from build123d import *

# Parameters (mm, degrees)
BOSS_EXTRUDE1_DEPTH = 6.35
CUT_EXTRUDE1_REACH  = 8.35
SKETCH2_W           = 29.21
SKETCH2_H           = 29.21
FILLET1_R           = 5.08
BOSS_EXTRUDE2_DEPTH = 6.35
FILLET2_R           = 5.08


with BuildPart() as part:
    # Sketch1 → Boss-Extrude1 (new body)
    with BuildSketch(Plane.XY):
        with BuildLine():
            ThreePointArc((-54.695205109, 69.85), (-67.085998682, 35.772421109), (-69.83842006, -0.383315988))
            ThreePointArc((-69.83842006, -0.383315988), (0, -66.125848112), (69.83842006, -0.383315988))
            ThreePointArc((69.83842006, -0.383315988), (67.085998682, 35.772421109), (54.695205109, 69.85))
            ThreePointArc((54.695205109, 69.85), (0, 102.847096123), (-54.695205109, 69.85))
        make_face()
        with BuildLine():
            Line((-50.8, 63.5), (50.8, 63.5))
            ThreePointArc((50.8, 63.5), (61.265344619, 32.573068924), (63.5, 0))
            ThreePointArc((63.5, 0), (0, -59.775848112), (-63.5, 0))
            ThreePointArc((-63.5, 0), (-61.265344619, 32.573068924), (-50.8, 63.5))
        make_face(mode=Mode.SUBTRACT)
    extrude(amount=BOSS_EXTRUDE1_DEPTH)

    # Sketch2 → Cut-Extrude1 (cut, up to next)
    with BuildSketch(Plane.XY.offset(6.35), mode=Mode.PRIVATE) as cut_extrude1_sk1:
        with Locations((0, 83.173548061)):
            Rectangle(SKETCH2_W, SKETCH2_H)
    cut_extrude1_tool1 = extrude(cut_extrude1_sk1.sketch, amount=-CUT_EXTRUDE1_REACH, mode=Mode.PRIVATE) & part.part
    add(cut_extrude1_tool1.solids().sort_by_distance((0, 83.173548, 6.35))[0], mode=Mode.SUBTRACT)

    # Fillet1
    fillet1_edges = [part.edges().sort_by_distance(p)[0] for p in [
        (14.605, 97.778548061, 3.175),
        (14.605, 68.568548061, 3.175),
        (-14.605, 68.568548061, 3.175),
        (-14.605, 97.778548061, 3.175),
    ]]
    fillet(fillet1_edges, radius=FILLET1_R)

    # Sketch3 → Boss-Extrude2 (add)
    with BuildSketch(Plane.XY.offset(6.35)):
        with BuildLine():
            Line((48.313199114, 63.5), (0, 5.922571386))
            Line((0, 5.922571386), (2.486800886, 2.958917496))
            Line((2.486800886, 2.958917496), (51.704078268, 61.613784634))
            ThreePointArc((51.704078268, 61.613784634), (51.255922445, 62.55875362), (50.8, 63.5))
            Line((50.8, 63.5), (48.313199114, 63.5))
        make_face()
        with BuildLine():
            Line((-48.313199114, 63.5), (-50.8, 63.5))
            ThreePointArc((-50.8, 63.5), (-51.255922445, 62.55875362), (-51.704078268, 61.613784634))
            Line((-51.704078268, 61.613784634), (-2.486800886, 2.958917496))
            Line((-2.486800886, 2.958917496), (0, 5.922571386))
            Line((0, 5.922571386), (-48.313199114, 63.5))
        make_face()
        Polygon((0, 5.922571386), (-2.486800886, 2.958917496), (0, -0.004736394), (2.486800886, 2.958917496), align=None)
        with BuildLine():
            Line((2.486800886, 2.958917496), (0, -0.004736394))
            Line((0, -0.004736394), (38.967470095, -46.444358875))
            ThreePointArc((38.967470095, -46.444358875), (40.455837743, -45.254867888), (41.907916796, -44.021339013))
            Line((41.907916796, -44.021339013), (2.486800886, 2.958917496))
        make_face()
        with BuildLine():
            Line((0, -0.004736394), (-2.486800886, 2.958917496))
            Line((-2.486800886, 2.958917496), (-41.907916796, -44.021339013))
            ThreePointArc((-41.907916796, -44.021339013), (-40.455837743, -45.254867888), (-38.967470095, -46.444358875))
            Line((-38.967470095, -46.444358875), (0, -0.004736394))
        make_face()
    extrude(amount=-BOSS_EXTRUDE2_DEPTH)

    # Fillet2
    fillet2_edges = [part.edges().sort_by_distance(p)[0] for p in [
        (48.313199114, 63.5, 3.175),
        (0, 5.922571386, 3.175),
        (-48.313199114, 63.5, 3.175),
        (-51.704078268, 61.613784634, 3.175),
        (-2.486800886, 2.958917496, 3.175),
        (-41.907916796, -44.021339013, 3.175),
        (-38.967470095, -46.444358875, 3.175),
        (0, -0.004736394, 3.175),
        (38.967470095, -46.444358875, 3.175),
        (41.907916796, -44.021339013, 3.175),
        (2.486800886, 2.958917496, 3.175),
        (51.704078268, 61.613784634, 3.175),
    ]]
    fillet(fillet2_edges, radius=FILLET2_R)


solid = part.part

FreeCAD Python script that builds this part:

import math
import FreeCAD as App
import Part
import Sketcher
from FreeCAD import Vector
Q = App.Units.Quantity


def edges_at(feature, points):
    """Names of the edges that pass closest to the given points."""
    edges = feature.Shape.Edges
    near = lambda p: min(range(len(edges)), key=lambda i: edges[i].distToShape(Part.Vertex(*p))[0])
    return sorted({f"Edge{near(p) + 1}" for p in points})


def add_polygon(sketch, points):
    """Adds a closed chain of lines whose ends are joined by coincident constraints."""
    first, n = sketch.GeometryCount, len(points)
    for a, b in zip(points, points[1:] + points[:1]):
        sketch.addGeometry(Part.LineSegment(App.Vector(*a, 0), App.Vector(*b, 0)), False)
    for i in range(n):
        sketch.addConstraint(Sketcher.Constraint("Coincident", first + i, 2, first + (i + 1) % n, 1))

doc = App.newDocument("Part")
params = doc.addObject("Spreadsheet::Sheet", "Params")
for row, (alias, value) in enumerate([
    ("sketch1_radius", "5 in"),
    ("sketch1_width", "4 in"),
    ("sketch1_radius2", "5.25 in"),
    ("pad1_length", "0.25 in"),
    ("sketch2_width", "1.15 in"),
    ("fillet_radius", "0.2 in"),
    ("sketch3_radius", "5 in"),
    ("pad2_length", "0.25 in"),
    ("fillet2_radius", "0.2 in"),
], start=1):
    params.set(f"A{row}", alias)
    params.set(f"B{row}", "=" + value)
    params.setAlias(f"B{row}", alias)

body = doc.addObject("PartDesign::Body", "Body")

# Sketch on XY plane
sketch1 = body.newObject("Sketcher::SketchObject", "Sketch")
sketch1.AttachmentSupport = (doc.getObject("XY_Plane"), [""])
sketch1.MapMode = "FlatFace"
sketch1.addGeometry(Part.ArcOfCircle(Part.Circle(Vector(63.268401, 7.66632, 0), Vector(0, 0, 1), 133.35), math.radians(152.204361), math.radians(183.460748)), False)
sketch1.addGeometry(Part.ArcOfCircle(Part.Circle(Vector(0, 3.840163, 0), Vector(0, 0, 1), 69.966011), math.radians(-176.539252), math.radians(-3.460748)), False)
sketch1.addGeometry(Part.ArcOfCircle(Part.Circle(Vector(-63.268401, 7.66632, 0), Vector(0, 0, 1), 133.35), math.radians(-3.460748), math.radians(27.795639)), False)
sketch1.addGeometry(Part.ArcOfCircle(Part.Circle(Vector(0, 41.01781, 0), Vector(0, 0, 1), 61.829286), math.radians(27.795639), math.radians(152.204361)), False)
sketch1.addGeometry(Part.ArcOfCircle(Part.Circle(Vector(63.268401, 7.66632, 0), Vector(0, 0, 1), 127), math.radians(153.919387), math.radians(183.460748)), False)
sketch1.addGeometry(Part.LineSegment(Vector(-50.8, 63.5, 0), Vector(50.8, 63.5, 0)), False)
sketch1.addGeometry(Part.ArcOfCircle(Part.Circle(Vector(-63.268401, 7.66632, 0), Vector(0, 0, 1), 127), math.radians(-3.460748), math.radians(26.080613)), False)
sketch1.addGeometry(Part.ArcOfCircle(Part.Circle(Vector(0, 3.840163, 0), Vector(0, 0, 1), 63.616011), math.radians(-176.539252), math.radians(-3.460748)), False)
sketch1.addConstraint(Sketcher.Constraint("Tangent", 0, 2, 1, 1))
sketch1.addConstraint(Sketcher.Constraint("Tangent", 1, 2, 2, 1))
sketch1.addConstraint(Sketcher.Constraint("Tangent", 2, 2, 3, 1))
sketch1.addConstraint(Sketcher.Constraint("Tangent", 3, 2, 0, 1))
sketch1.addConstraint(Sketcher.Constraint("Coincident", 4, 1, 5, 1))
sketch1.addConstraint(Sketcher.Constraint("Coincident", 5, 2, 6, 2))
sketch1.addConstraint(Sketcher.Constraint("Tangent", 6, 1, 7, 2))
sketch1.addConstraint(Sketcher.Constraint("Tangent", 7, 1, 4, 2))
sketch1.addConstraint(Sketcher.Constraint("Horizontal", 5))
sketch1.addConstraint(Sketcher.Constraint("Coincident", 4, 3, 0, 3))
sketch1.addConstraint(Sketcher.Constraint("Coincident", 6, 3, 2, 3))
sketch1.addConstraint(Sketcher.Constraint("Coincident", 7, 3, 1, 3))
sketch1.addConstraint(Sketcher.Constraint("Equal", 0, 2))
sketch1.addConstraint(Sketcher.Constraint("Symmetric", 6, 1, 7, 1, -1, 1))
sketch1.addConstraint(Sketcher.Constraint("PointOnObject", 1, 3, -2))
sketch1.addConstraint(Sketcher.Constraint("Radius", 4, Q("5 in")))
sketch1.addConstraint(Sketcher.Constraint("DistanceX", 5, 1, 5, 2, Q("4 in")))
sketch1.addConstraint(Sketcher.Constraint("Radius", 0, Q("5.25 in")))
sketch1.addConstraint(Sketcher.Constraint("DistanceY", -1, 1, 4, 1, Q("2.5 in")))
sketch1.addConstraint(Sketcher.Constraint("DistanceX", -1, 1, 6, 1, Q("2.5 in")))
sketch1.addConstraint(Sketcher.Constraint("DistanceY", -1, 1, 2, 2, Q("2.75 in")))
sketch1.setExpression("Constraints[15]", "Params.sketch1_radius")
sketch1.setExpression("Constraints[16]", "Params.sketch1_width")
sketch1.setExpression("Constraints[17]", "Params.sketch1_radius2")
pad1 = body.newObject("PartDesign::Pad", "Pad")
pad1.Profile = sketch1
pad1.setExpression("Length", "Params.pad1_length")

# Sketch on XY plane
sketch2 = body.newObject("Sketcher::SketchObject", "Sketch001")
sketch2.AttachmentSupport = (doc.getObject("XY_Plane"), [""])
sketch2.MapMode = "FlatFace"
sketch2.AttachmentOffset = App.Placement(Vector(0, 0, 0.25 * 25.4), App.Rotation())
add_polygon(sketch2, [(-14.605, 97.778548), (-14.605, 68.568548), (14.605, 68.568548), (14.605, 97.778548)])  # lines 0-3
sketch2.addConstraint(Sketcher.Constraint("Vertical", 0))
sketch2.addConstraint(Sketcher.Constraint("Horizontal", 1))
sketch2.addConstraint(Sketcher.Constraint("Vertical", 2))
sketch2.addConstraint(Sketcher.Constraint("Horizontal", 3))
sketch2.addConstraint(Sketcher.Constraint("Equal", 3, 0))
sketch2.addConstraint(Sketcher.Constraint("DistanceX", 1, 1, 1, 2, Q("1.15 in")))
sketch2.addConstraint(Sketcher.Constraint("DistanceX", 0, 2, -1, 1, Q("0.575 in")))
sketch2.addConstraint(Sketcher.Constraint("DistanceY", -1, 1, 0, 2, 68.568548))
sketch2.setExpression("Constraints[9]", "Params.sketch2_width")
pocket1 = body.newObject("PartDesign::Pocket", "Pocket")
pocket1.Profile = sketch2
pocket1.Type = "UpToFirst"
doc.recompute()

fillet = body.newObject("PartDesign::Fillet", "Fillet")
fillet.Base = (pocket1, edges_at(pocket1, [
    (14.605, 97.779, 3.175),
    (14.605, 68.569, 3.175),
    (-14.605, 68.569, 3.175),
    (-14.605, 97.779, 3.175),
]))
fillet.setExpression("Radius", "Params.fillet_radius")

# Sketch on XY plane
sketch3 = body.newObject("Sketcher::SketchObject", "Sketch002")
sketch3.AttachmentSupport = (doc.getObject("XY_Plane"), [""])
sketch3.MapMode = "FlatFace"
sketch3.AttachmentOffset = App.Placement(Vector(0, 0, 0.25 * 25.4), App.Rotation())
sketch3.addGeometry(Part.LineSegment(Vector(48.313199, 63.5, 0), Vector(0, 5.922571, 0)), False)
sketch3.addGeometry(Part.LineSegment(Vector(0, 5.922571, 0), Vector(-48.313199, 63.5, 0)), False)
sketch3.addGeometry(Part.LineSegment(Vector(-48.313199, 63.5, 0), Vector(-50.8, 63.5, 0)), False)
sketch3.addGeometry(Part.ArcOfCircle(Part.Circle(Vector(63.2684, 7.66632, 0), Vector(0, 0, 1), 126.999999), math.radians(153.919387), math.radians(154.863059)), False)
sketch3.addGeometry(Part.LineSegment(Vector(-51.704078, 61.613785, 0), Vector(-2.486801, 2.958917, 0)), False)
sketch3.addGeometry(Part.LineSegment(Vector(-2.486801, 2.958917, 0), Vector(-41.907917, -44.021339, 0)), False)
sketch3.addGeometry(Part.ArcOfCircle(Part.Circle(Vector(0.000001, 3.840164, 0), Vector(0, 0, 1), 63.616012), math.radians(-131.205651), math.radians(-127.773524)), False)
sketch3.addGeometry(Part.LineSegment(Vector(-38.96747, -46.444359, 0), Vector(0, -0.004736, 0)), False)
sketch3.addGeometry(Part.LineSegment(Vector(0, -0.004736, 0), Vector(38.96747, -46.444359, 0)), False)
sketch3.addGeometry(Part.ArcOfCircle(Part.Circle(Vector(-0.000001, 3.840164, 0), Vector(0, 0, 1), 63.616012), math.radians(-52.226476), math.radians(-48.794349)), False)
sketch3.addGeometry(Part.LineSegment(Vector(41.907917, -44.021339, 0), Vector(2.486801, 2.958917, 0)), False)
sketch3.addGeometry(Part.LineSegment(Vector(2.486801, 2.958917, 0), Vector(51.704078, 61.613785, 0)), False)
sketch3.addGeometry(Part.ArcOfCircle(Part.Circle(Vector(-63.2684, 7.66632, 0), Vector(0, 0, 1), 126.999999), math.radians(25.136941), math.radians(26.080613)), False)
sketch3.addGeometry(Part.LineSegment(Vector(50.8, 63.5, 0), Vector(48.313199, 63.5, 0)), False)
sketch3.addConstraint(Sketcher.Constraint("Coincident", 0, 2, 1, 1))
sketch3.addConstraint(Sketcher.Constraint("Coincident", 1, 2, 2, 1))
sketch3.addConstraint(Sketcher.Constraint("Coincident", 2, 2, 3, 1))
sketch3.addConstraint(Sketcher.Constraint("Coincident", 3, 2, 4, 1))
sketch3.addConstraint(Sketcher.Constraint("Coincident", 4, 2, 5, 1))
sketch3.addConstraint(Sketcher.Constraint("Coincident", 5, 2, 6, 1))
sketch3.addConstraint(Sketcher.Constraint("Coincident", 6, 2, 7, 1))
sketch3.addConstraint(Sketcher.Constraint("Coincident", 7, 2, 8, 1))
sketch3.addConstraint(Sketcher.Constraint("Coincident", 8, 2, 9, 1))
sketch3.addConstraint(Sketcher.Constraint("Coincident", 9, 2, 10, 1))
sketch3.addConstraint(Sketcher.Constraint("Coincident", 10, 2, 11, 1))
sketch3.addConstraint(Sketcher.Constraint("Coincident", 11, 2, 12, 1))
sketch3.addConstraint(Sketcher.Constraint("Coincident", 12, 2, 13, 1))
sketch3.addConstraint(Sketcher.Constraint("Coincident", 13, 2, 0, 1))
sketch3.addConstraint(Sketcher.Constraint("Horizontal", 2))
sketch3.addConstraint(Sketcher.Constraint("Horizontal", 13))
sketch3.addConstraint(Sketcher.Constraint("Coincident", 9, 3, 6, 3))
sketch3.addConstraint(Sketcher.Constraint("Equal", 6, 9))
sketch3.addConstraint(Sketcher.Constraint("Equal", 3, 12))
sketch3.addConstraint(Sketcher.Constraint("Symmetric", 3, 3, 12, 3, -2))
sketch3.addConstraint(Sketcher.Constraint("Symmetric", 6, 2, 8, 2, -2))
sketch3.addConstraint(Sketcher.Constraint("Symmetric", 4, 2, 10, 2, -2))
sketch3.addConstraint(Sketcher.Constraint("Symmetric", 1, 2, 13, 2, -2))
sketch3.addConstraint(Sketcher.Constraint("PointOnObject", 0, 2, -2))
sketch3.addConstraint(Sketcher.Constraint("PointOnObject", 7, 2, -2))
sketch3.addConstraint(Sketcher.Constraint("Parallel", 1, 4))
sketch3.addConstraint(Sketcher.Constraint("Parallel", 0, 5))
sketch3.addConstraint(Sketcher.Constraint("Parallel", 5, 7))
sketch3.addConstraint(Sketcher.Constraint("Parallel", 8, 10))
sketch3.addConstraint(Sketcher.Constraint("Parallel", 7, 11))
sketch3.addConstraint(Sketcher.Constraint("Radius", 3, Q("5 in")))
sketch3.addConstraint(Sketcher.Constraint("DistanceX", 2, 2, -1, 1, Q("2 in")))
sketch3.addConstraint(Sketcher.Constraint("Angle", 0, Q("-130 deg")))
sketch3.addConstraint(Sketcher.Constraint("DistanceY", -1, 1, 1, 2, Q("2.5 in")))
sketch3.addConstraint(Sketcher.Constraint("DistanceX", 2, 2, 2, 1, 2.486801))
sketch3.addConstraint(Sketcher.Constraint("Radius", 6, 63.616012))
sketch3.addConstraint(Sketcher.Constraint("DistanceX", -1, 1, 3, 3, 63.2684))
sketch3.addConstraint(Sketcher.Constraint("DistanceX", 4, 2, -1, 1, 2.486801))
sketch3.addConstraint(Sketcher.Constraint("DistanceY", 7, 2, 6, 3, 3.8449))
sketch3.addConstraint(Sketcher.Constraint("Distance", 4, 76.568491))
sketch3.addConstraint(Sketcher.Constraint("Distance", 5, 61.328369))
sketch3.setExpression("Constraints[30]", "Params.sketch3_radius")
pad2 = body.newObject("PartDesign::Pad", "Pad001")
pad2.Profile = sketch3
pad2.setExpression("Length", "Params.pad2_length")
pad2.Reversed = True
doc.recompute()

fillet2 = body.newObject("PartDesign::Fillet", "Fillet001")
fillet2.Base = (pad2, edges_at(pad2, [
    (48.313, 63.5, 3.175),
    (0, 5.923, 3.175),
    (-48.313, 63.5, 3.175),
    (-51.704, 61.614, 3.175),
    (-2.487, 2.959, 3.175),
    (-41.908, -44.021, 3.175),
    (-38.967, -46.444, 3.175),
    (0, -0.005, 3.175),
    (38.967, -46.444, 3.175),
    (41.908, -44.021, 3.175),
    (2.487, 2.959, 3.175),
    (51.704, 61.614, 3.175),
]))
fillet2.setExpression("Radius", "Params.fillet2_radius")

doc.recompute()
